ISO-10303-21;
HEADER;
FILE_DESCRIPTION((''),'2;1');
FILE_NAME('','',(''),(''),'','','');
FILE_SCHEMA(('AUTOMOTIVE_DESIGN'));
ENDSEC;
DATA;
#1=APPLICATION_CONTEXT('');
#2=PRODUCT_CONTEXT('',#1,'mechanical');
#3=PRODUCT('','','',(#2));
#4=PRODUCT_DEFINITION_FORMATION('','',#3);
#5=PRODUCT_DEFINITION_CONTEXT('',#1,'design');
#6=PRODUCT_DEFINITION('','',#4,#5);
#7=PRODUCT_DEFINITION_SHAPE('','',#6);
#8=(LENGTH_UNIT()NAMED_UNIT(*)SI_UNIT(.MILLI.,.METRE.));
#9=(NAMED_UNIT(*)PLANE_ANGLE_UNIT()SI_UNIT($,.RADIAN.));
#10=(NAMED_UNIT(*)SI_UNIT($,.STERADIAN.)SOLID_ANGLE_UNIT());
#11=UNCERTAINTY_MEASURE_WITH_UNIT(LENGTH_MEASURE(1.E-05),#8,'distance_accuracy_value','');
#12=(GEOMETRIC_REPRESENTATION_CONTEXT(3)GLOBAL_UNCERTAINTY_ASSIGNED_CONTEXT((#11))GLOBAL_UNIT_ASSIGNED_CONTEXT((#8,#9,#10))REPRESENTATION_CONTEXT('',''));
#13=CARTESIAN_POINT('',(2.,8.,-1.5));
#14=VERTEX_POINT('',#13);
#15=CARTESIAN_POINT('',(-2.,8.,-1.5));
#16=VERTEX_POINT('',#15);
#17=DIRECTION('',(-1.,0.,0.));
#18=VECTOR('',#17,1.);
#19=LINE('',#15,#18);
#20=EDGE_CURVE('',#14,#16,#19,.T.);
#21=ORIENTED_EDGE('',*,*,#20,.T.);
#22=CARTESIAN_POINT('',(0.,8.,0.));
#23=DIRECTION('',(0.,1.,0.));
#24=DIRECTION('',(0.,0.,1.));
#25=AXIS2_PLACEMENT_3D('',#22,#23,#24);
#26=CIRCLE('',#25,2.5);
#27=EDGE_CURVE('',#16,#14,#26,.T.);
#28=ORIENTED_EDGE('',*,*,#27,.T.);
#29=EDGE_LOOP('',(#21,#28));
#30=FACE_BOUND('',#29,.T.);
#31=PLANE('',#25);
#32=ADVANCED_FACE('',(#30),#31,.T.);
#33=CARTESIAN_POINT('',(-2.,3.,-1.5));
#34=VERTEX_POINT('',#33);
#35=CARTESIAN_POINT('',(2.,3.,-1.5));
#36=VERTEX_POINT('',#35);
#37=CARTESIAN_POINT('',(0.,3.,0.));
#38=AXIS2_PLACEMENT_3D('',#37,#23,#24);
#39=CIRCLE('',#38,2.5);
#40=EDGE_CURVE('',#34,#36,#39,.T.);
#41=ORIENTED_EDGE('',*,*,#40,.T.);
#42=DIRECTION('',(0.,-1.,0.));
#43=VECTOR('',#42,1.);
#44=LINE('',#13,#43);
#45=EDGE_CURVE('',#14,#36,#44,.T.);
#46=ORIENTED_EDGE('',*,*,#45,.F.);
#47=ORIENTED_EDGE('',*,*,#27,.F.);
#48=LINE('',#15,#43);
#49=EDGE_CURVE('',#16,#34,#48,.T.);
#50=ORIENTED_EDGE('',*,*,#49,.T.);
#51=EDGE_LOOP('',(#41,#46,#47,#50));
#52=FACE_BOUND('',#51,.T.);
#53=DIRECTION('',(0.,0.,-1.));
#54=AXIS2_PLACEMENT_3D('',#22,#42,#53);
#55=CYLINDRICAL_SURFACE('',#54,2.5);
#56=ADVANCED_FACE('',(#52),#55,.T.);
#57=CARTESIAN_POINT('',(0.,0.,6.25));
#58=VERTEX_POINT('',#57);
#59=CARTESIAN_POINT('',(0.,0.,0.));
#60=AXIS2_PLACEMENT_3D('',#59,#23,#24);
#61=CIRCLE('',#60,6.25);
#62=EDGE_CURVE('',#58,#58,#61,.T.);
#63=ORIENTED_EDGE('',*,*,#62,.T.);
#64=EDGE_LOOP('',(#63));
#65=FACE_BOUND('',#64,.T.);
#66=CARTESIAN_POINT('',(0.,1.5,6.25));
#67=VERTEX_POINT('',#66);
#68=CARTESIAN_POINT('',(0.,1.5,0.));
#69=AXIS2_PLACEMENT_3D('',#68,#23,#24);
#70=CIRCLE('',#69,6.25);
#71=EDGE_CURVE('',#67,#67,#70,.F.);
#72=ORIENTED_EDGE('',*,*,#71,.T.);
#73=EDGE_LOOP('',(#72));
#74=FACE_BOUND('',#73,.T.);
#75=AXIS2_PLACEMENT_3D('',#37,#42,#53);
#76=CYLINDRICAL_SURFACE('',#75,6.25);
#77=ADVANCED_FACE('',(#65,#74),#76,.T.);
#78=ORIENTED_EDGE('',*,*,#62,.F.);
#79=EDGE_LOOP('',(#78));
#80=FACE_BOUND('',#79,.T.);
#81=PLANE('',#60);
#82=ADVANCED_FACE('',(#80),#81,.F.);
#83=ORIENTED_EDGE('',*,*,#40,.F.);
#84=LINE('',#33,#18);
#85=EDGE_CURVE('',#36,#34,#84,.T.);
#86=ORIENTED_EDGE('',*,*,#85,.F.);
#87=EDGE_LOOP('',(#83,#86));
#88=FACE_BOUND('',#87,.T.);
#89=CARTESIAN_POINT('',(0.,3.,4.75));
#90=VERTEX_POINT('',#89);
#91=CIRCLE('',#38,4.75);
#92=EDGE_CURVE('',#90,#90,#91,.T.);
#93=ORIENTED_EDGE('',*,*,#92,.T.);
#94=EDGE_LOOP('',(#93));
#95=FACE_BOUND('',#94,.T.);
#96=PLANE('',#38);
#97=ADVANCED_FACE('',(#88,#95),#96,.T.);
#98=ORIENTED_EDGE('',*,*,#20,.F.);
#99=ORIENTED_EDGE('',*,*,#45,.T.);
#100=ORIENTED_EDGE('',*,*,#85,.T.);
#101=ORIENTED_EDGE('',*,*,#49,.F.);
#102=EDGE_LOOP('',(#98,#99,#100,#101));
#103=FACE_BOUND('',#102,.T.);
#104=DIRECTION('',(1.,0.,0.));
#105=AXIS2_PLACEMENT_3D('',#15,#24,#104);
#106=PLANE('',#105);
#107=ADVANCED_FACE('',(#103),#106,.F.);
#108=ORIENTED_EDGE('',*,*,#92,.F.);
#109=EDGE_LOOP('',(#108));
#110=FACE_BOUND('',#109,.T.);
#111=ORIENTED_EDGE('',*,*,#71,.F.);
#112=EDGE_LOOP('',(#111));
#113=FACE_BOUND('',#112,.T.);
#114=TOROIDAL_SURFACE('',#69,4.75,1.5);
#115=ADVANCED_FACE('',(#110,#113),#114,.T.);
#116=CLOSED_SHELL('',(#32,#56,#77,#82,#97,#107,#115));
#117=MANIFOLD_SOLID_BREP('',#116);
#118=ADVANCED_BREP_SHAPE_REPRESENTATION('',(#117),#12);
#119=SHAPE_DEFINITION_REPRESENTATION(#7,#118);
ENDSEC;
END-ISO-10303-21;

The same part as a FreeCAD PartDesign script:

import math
import FreeCAD as App
import Part
import Sketcher

V = App.Vector


def edges_at(feature, points):
    """Names of the edges that pass closest to the given points."""
    edges = feature.Shape.Edges
    near = lambda p: min(range(len(edges)), key=lambda i: edges[i].distToShape(Part.Vertex(*p))[0])
    return sorted({f"Edge{near(p) + 1}" for p in points})

doc = App.newDocument("Part")
body = doc.addObject("PartDesign::Body", "Body")

# Sketch on XZ plane
sketch1 = body.newObject("Sketcher::SketchObject", "Sketch")
sketch1.AttachmentSupport = (doc.getObject("XZ_Plane"), [""])
sketch1.MapMode = "FlatFace"
sketch1.addGeometry(Part.Circle(V(0, 0, 0), V(0, 0, 1), 6), False)
sketch1.addConstraint(Sketcher.Constraint("Coincident", 0, 3, -1, 1))
sketch1.addConstraint(Sketcher.Constraint("Diameter", 0, 12.5))
pad1 = body.newObject("PartDesign::Pad", "Pad")
pad1.Profile = sketch1
pad1.Length = 3
pad1.Reversed = True

# Sketch on XZ plane
sketch2 = body.newObject("Sketcher::SketchObject", "Sketch001")
sketch2.AttachmentSupport = (doc.getObject("XZ_Plane"), [""])
sketch2.MapMode = "FlatFace"
sketch2.AttachmentOffset = App.Placement(V(0, 0, -3), App.Rotation())
sketch2.addGeometry(Part.LineSegment(V(2, -1.5, 0), V(-2, -1.5, 0)), False)
sketch2.addGeometry(Part.ArcOfCircle(Part.Circle(V(0, 0, 0), V(0, 0, 1), 2.5), math.radians(-37), math.radians(217)), False)
sketch2.addConstraint(Sketcher.Constraint("Coincident", 0, 1, 1, 1))
sketch2.addConstraint(Sketcher.Constraint("Coincident", 1, 2, 0, 2))
sketch2.addConstraint(Sketcher.Constraint("Horizontal", 0))
sketch2.addConstraint(Sketcher.Constraint("Coincident", 1, 3, -1, 1))
sketch2.addConstraint(Sketcher.Constraint("Radius", 1, 2.5))
sketch2.addConstraint(Sketcher.Constraint("DistanceX", 0, 2, 0, 1, 4.0))
pad2 = body.newObject("PartDesign::Pad", "Pad001")
pad2.Profile = sketch2
pad2.Length = 5
pad2.Reversed = True
doc.recompute()

fillet = body.newObject("PartDesign::Fillet", "Fillet")
fillet.Base = (pad2, edges_at(pad2, [(0, 3, -6.25)]))
fillet.Radius = 1.5

doc.recompute()
